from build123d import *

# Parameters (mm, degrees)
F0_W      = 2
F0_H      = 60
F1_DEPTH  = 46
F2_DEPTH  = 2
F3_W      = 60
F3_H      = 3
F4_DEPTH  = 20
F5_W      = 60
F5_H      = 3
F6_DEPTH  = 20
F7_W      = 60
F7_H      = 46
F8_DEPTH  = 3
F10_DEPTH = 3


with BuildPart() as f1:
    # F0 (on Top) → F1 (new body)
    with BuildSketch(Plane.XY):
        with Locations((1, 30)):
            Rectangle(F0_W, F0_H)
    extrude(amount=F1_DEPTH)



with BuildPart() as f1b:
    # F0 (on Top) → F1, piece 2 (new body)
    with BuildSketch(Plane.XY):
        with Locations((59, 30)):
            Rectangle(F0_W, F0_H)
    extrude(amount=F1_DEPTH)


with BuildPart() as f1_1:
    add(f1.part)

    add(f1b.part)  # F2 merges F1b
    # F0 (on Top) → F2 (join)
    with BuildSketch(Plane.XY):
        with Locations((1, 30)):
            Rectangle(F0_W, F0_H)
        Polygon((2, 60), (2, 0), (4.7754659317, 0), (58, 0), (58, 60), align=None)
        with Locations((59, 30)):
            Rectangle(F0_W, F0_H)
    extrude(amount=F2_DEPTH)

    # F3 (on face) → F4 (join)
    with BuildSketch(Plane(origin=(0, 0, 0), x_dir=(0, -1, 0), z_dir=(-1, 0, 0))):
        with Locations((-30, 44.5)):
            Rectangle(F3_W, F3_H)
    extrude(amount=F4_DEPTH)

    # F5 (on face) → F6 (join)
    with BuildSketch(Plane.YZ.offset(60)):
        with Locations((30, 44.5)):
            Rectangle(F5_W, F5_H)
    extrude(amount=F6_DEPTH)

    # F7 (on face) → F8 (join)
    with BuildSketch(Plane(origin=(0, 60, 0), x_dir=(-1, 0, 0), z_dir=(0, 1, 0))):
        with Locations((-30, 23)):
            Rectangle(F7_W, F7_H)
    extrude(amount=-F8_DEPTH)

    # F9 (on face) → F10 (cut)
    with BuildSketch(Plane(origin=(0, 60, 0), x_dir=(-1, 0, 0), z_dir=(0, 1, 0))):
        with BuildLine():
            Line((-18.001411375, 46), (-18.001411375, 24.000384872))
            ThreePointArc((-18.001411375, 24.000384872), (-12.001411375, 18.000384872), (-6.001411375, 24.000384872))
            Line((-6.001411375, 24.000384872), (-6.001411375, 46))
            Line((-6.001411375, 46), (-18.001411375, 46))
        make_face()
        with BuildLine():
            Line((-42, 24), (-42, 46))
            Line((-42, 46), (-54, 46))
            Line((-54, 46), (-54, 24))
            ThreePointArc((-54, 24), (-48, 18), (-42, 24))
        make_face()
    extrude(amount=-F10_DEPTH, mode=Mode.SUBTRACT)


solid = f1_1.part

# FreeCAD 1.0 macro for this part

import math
import FreeCAD as App
import Part
import Sketcher
from FreeCAD import Vector


def add_polygon(sketch, points):
    """Adds a closed chain of lines whose ends are joined by coincident constraints."""
    first, n = sketch.GeometryCount, len(points)
    for a, b in zip(points, points[1:] + points[:1]):
        sketch.addGeometry(Part.LineSegment(App.Vector(*a, 0), App.Vector(*b, 0)), False)
    for i in range(n):
        sketch.addConstraint(Sketcher.Constraint("Coincident", first + i, 2, first + (i + 1) % n, 1))

doc = App.newDocument("Part")
body = doc.addObject("PartDesign::Body", "Body")

# Sketch on XY plane
sketch1 = doc.addObject("Sketcher::SketchObject", "Sketch")
body.addObject(sketch1)
sketch1.AttachmentSupport = (doc.XY_Plane, [""])
sketch1.MapMode = "FlatFace"
add_polygon(sketch1, [(0, 60), (0, 0), (2, 0), (2, 60)])  # lines 0-3
sketch1.addConstraint([
    Sketcher.Constraint("Vertical", 0),
    Sketcher.Constraint("Horizontal", 1),
    Sketcher.Constraint("Vertical", 2),
    Sketcher.Constraint("Horizontal", 3),
    Sketcher.Constraint("Coincident", 0, 2, -1, 1),
    Sketcher.Constraint("DistanceX", 1, 1, 1, 2, 2.0),
    Sketcher.Constraint("DistanceY", 0, 2, 0, 1, 60.0),
])
pad1 = doc.addObject("PartDesign::Pad", "Pad")
body.addObject(pad1)
pad1.Profile = sketch1
pad1.Length = 46
body2 = doc.addObject("PartDesign::Body", "Body001")

# Sketch on XY plane
sketch2 = doc.addObject("Sketcher::SketchObject", "Sketch001")
body2.addObject(sketch2)
sketch2.AttachmentSupport = (doc.getObject("XY_Plane001"), [""])
sketch2.MapMode = "FlatFace"
add_polygon(sketch2, [(58, 60), (58, 0), (60, 0), (60, 60)])  # lines 0-3
sketch2.addConstraint([
    Sketcher.Constraint("Vertical", 0),
    Sketcher.Constraint("Horizontal", 1),
    Sketcher.Constraint("Vertical", 2),
    Sketcher.Constraint("Horizontal", 3),
    Sketcher.Constraint("PointOnObject", 0, 2, -1),
    Sketcher.Constraint("DistanceX", 1, 1, 1, 2, 2.0),
    Sketcher.Constraint("DistanceY", 0, 2, 0, 1, 60.0),
    Sketcher.Constraint("DistanceX", -1, 1, 0, 2, 58.0),
])
pad2 = doc.addObject("PartDesign::Pad", "Pad001")
body2.addObject(pad2)
pad2.Profile = sketch2
pad2.Length = 46
body.AllowCompound = True
doc.recompute()

boolean = doc.addObject("PartDesign::Boolean", "Boolean")
body.addObject(boolean)
boolean.Type = "Fuse"
boolean.addObjects([body2])

# Sketch on XY plane
sketch3 = doc.addObject("Sketcher::SketchObject", "Sketch002")
body.addObject(sketch3)
sketch3.AttachmentSupport = (doc.XY_Plane, [""])
sketch3.MapMode = "FlatFace"
add_polygon(sketch3, [(0, 60), (0, 0), (60, 0), (60, 60)])  # lines 0-3
sketch3.addConstraint([
    Sketcher.Constraint("Vertical", 0),
    Sketcher.Constraint("Horizontal", 1),
    Sketcher.Constraint("Vertical", 2),
    Sketcher.Constraint("Horizontal", 3),
    Sketcher.Constraint("Coincident", 0, 2, -1, 1),
    Sketcher.Constraint("Equal", 3, 0),
    Sketcher.Constraint("DistanceX", 1, 1, 1, 2, 60.0),
])
pad3 = doc.addObject("PartDesign::Pad", "Pad002")
body.addObject(pad3)
pad3.Profile = sketch3
pad3.Length = 2

# Sketch on YZ plane
sketch4 = doc.addObject("Sketcher::SketchObject", "Sketch003")
body.addObject(sketch4)
sketch4.AttachmentSupport = (doc.YZ_Plane, [""])
sketch4.MapMode = "FlatFace"
add_polygon(sketch4, [(60, 46), (60, 43), (0, 43), (0, 46)])  # lines 0-3
sketch4.addConstraint([
    Sketcher.Constraint("Vertical", 0),
    Sketcher.Constraint("Horizontal", 1),
    Sketcher.Constraint("Vertical", 2),
    Sketcher.Constraint("Horizontal", 3),
    Sketcher.Constraint("PointOnObject", 1, 2, -2),
    Sketcher.Constraint("DistanceX", 1, 2, 1, 1, 60.0),
    Sketcher.Constraint("DistanceY", 0, 2, 0, 1, 3.0),
    Sketcher.Constraint("DistanceY", -1, 1, 0, 2, 43.0),
])
pad4 = doc.addObject("PartDesign::Pad", "Pad003")
body.addObject(pad4)
pad4.Profile = sketch4
pad4.Length = 20
pad4.Reversed = True

# Sketch on YZ plane
sketch5 = doc.addObject("Sketcher::SketchObject", "Sketch004")
body.addObject(sketch5)
sketch5.AttachmentSupport = (doc.YZ_Plane, [""])
sketch5.MapMode = "FlatFace"
sketch5.AttachmentOffset = App.Placement(Vector(0, 0, 60), App.Rotation())
add_polygon(sketch5, [(0, 46), (0, 43), (60, 43), (60, 46)])  # lines 0-3
sketch5.addConstraint([
    Sketcher.Constraint("Vertical", 0),
    Sketcher.Constraint("Horizontal", 1),
    Sketcher.Constraint("Vertical", 2),
    Sketcher.Constraint("Horizontal", 3),
    Sketcher.Constraint("PointOnObject", 0, 2, -2),
    Sketcher.Constraint("DistanceX", 1, 1, 1, 2, 60.0),
    Sketcher.Constraint("DistanceY", 0, 2, 0, 1, 3.0),
    Sketcher.Constraint("DistanceY", -1, 1, 0, 2, 43.0),
])
pad5 = doc.addObject("PartDesign::Pad", "Pad004")
body.addObject(pad5)
pad5.Profile = sketch5
pad5.Length = 20

# Sketch on XZ plane
sketch6 = doc.addObject("Sketcher::SketchObject", "Sketch005")
body.addObject(sketch6)
sketch6.AttachmentSupport = (doc.XZ_Plane, [""])
sketch6.MapMode = "FlatFace"
sketch6.AttachmentOffset = App.Placement(Vector(0, 0, -60), App.Rotation())
add_polygon(sketch6, [(60, 46), (60, 0), (0, 0), (0, 46)])  # lines 0-3
sketch6.addConstraint([
    Sketcher.Constraint("Vertical", 0),
    Sketcher.Constraint("Horizontal", 1),
    Sketcher.Constraint("Vertical", 2),
    Sketcher.Constraint("Horizontal", 3),
    Sketcher.Constraint("Coincident", 1, 2, -1, 1),
    Sketcher.Constraint("DistanceX", 1, 2, 1, 1, 60.0),
    Sketcher.Constraint("DistanceY", 0, 2, 0, 1, 46.0),
])
pad6 = doc.addObject("PartDesign::Pad", "Pad005")
body.addObject(pad6)
pad6.Profile = sketch6
pad6.Length = 3

# Sketch on XZ plane
sketch7 = doc.addObject("Sketcher::SketchObject", "Sketch006")
body.addObject(sketch7)
sketch7.AttachmentSupport = (doc.XZ_Plane, [""])
sketch7.MapMode = "FlatFace"
sketch7.AttachmentOffset = App.Placement(Vector(0, 0, -60), App.Rotation())
sketch7.addGeometry([
    Part.LineSegment(Vector(18, 46, 0), Vector(18, 24, 0)),  # 0
    Part.ArcOfCircle(Part.Circle(Vector(12, 24, 0), Vector(0, 0, 1), 6), math.radians(180), math.radians(360)),  # 1
    Part.LineSegment(Vector(6, 24, 0), Vector(6, 46, 0)),  # 2
    Part.LineSegment(Vector(6, 46, 0), Vector(18, 46, 0)),  # 3
    Part.LineSegment(Vector(42, 24, 0), Vector(42, 46, 0)),  # 4
    Part.LineSegment(Vector(42, 46, 0), Vector(54, 46, 0)),  # 5
    Part.LineSegment(Vector(54, 46, 0), Vector(54, 24, 0)),  # 6
    Part.ArcOfCircle(Part.Circle(Vector(48, 24, 0), Vector(0, 0, 1), 6), math.radians(180), math.radians(360)),  # 7
], False)
sketch7.addConstraint([
    Sketcher.Constraint("Tangent", 0, 2, 1, 2),
    Sketcher.Constraint("Tangent", 1, 1, 2, 1),
    Sketcher.Constraint("Coincident", 2, 2, 3, 1),
    Sketcher.Constraint("Coincident", 3, 2, 0, 1),
    Sketcher.Constraint("Coincident", 4, 2, 5, 1),
    Sketcher.Constraint("Coincident", 5, 2, 6, 1),
    Sketcher.Constraint("Tangent", 6, 2, 7, 2),
    Sketcher.Constraint("Tangent", 7, 1, 4, 1),
    Sketcher.Constraint("Vertical", 0),
    Sketcher.Constraint("Vertical", 2),
    Sketcher.Constraint("Horizontal", 3),
    Sketcher.Constraint("Vertical", 4),
    Sketcher.Constraint("Horizontal", 5),
    Sketcher.Constraint("Vertical", 6),
    Sketcher.Constraint("Equal", 1, 7),
    Sketcher.Constraint("Horizontal", 3, 2, 4, 2),
    Sketcher.Constraint("Radius", 1, 6.0),
    Sketcher.Constraint("DistanceY", 4, 1, 4, 2, 22.0),
    Sketcher.Constraint("DistanceX", -1, 1, 7, 3, 48.0),
    Sketcher.Constraint("DistanceY", -1, 1, 7, 3, 24.0),
    Sketcher.Constraint("DistanceY", 0, 2, 0, 1, 21.999615),
    Sketcher.Constraint("DistanceX", -1, 1, 1, 3, 12.001411),
])
pocket1 = doc.addObject("PartDesign::Pocket", "Pocket")
body.addObject(pocket1)
pocket1.Profile = sketch7
pocket1.Length = 3
pocket1.Reversed = True

doc.recompute()
